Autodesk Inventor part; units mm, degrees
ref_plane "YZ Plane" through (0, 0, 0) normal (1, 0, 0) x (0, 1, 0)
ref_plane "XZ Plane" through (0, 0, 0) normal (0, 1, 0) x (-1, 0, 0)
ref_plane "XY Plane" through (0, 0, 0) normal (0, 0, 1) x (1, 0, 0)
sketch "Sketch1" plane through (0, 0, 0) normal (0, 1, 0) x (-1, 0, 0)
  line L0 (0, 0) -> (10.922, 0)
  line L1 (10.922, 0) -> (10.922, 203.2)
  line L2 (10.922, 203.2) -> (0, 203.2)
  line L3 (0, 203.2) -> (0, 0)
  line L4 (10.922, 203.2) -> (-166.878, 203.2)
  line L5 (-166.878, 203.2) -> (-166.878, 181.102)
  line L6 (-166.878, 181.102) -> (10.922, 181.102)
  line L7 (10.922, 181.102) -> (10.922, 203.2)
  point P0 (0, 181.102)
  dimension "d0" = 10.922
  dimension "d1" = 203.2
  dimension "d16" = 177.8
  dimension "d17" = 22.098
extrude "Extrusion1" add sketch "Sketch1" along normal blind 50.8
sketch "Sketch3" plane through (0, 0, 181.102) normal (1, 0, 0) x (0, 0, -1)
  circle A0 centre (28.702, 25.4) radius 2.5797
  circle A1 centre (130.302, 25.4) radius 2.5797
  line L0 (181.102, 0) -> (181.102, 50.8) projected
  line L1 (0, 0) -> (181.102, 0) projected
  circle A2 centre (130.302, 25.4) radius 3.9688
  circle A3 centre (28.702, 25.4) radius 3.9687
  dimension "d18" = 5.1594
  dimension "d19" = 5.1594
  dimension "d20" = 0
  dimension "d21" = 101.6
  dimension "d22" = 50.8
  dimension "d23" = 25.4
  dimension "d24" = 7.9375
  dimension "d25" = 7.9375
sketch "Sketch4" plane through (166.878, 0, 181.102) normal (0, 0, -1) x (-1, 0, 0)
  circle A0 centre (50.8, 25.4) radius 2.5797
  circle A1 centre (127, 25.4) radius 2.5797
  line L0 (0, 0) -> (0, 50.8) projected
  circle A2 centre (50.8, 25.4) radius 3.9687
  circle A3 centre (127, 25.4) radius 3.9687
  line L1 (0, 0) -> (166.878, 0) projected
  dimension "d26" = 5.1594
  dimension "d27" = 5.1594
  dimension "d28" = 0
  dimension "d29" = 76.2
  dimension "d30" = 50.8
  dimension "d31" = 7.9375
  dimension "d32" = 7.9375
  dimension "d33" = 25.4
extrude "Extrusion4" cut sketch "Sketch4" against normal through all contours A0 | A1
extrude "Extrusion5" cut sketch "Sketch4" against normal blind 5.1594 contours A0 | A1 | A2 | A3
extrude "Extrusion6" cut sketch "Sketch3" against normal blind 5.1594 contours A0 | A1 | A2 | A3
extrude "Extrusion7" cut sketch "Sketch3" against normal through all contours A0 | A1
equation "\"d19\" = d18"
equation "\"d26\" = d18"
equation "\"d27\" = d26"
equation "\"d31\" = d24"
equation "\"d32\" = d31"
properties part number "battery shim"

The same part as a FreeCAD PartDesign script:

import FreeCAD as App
import Part
import Sketcher

V = App.Vector
Q = App.Units.Quantity


def add_polygon(sketch, points):
    """Adds a closed chain of lines whose ends are joined by coincident constraints."""
    first, n = sketch.GeometryCount, len(points)
    for a, b in zip(points, points[1:] + points[:1]):
        sketch.addGeometry(Part.LineSegment(App.Vector(*a, 0), App.Vector(*b, 0)), False)
    for i in range(n):
        sketch.addConstraint(Sketcher.Constraint("Coincident", first + i, 2, first + (i + 1) % n, 1))

doc = App.newDocument("Part")
params = doc.addObject("Spreadsheet::Sheet", "Params")
for row, (alias, value) in enumerate([
    ("sketch1_width", "7 in"),
    ("sketch1_height", "8 in"),
    ("sketch1_width2", "0.43 in"),
    ("sketch1_height2", "0.87 in"),
    ("pad1_length", "2 in"),
    ("sketch2_diameter", "0.203126 in"),
    ("sketch3_diameter", "0.3125 in"),
    ("pocket2_length", "0.203126 in"),
    ("sketch4_diameter", "0.3125 in"),
    ("pocket3_length", "0.203126 in"),
    ("sketch5_diameter", "0.203126 in"),
], start=1):
    params.set(f"A{row}", alias)
    params.set(f"B{row}", "=" + value)
    params.setAlias(f"B{row}", alias)

body = doc.addObject("PartDesign::Body", "Body")

sketch1 = body.newObject("Sketcher::SketchObject", "Sketch")
sketch1.AttachmentSupport = (doc.getObject("XZ_Plane"), [""])
sketch1.MapMode = "FlatFace"
add_polygon(sketch1, [(0, 181), (0, 0), (-11, 0), (-11, 203), (167, 203), (167, 181)])
sketch1.addConstraint(Sketcher.Constraint("Vertical", 0))
sketch1.addConstraint(Sketcher.Constraint("Horizontal", 1))
sketch1.addConstraint(Sketcher.Constraint("Vertical", 2))
sketch1.addConstraint(Sketcher.Constraint("Horizontal", 3))
sketch1.addConstraint(Sketcher.Constraint("Vertical", 4))
sketch1.addConstraint(Sketcher.Constraint("Horizontal", 5))
sketch1.addConstraint(Sketcher.Constraint("Coincident", 0, 2, -1, 1))
sketch1.addConstraint(Sketcher.Constraint("DistanceX", 3, 1, 3, 2, Q("7 in")))
sketch1.addConstraint(Sketcher.Constraint("DistanceY", 2, 1, 2, 2, Q("8 in")))
sketch1.addConstraint(Sketcher.Constraint("DistanceX", 1, 2, 1, 1, Q("0.43 in")))
sketch1.addConstraint(Sketcher.Constraint("DistanceY", 4, 2, 4, 1, Q("0.87 in")))
sketch1.setExpression("Constraints[13]", "Params.sketch1_width")
sketch1.setExpression("Constraints[14]", "Params.sketch1_height")
sketch1.setExpression("Constraints[15]", "Params.sketch1_width2")
sketch1.setExpression("Constraints[16]", "Params.sketch1_height2")
pad1 = body.newObject("PartDesign::Pad", "Pad")
pad1.Profile = sketch1
pad1.setExpression("Length", "Params.pad1_length")
pad1.Reversed = True

sketch2 = body.newObject("Sketcher::SketchObject", "Sketch001")
sketch2.AttachmentSupport = (doc.getObject("XY_Plane"), [""])
sketch2.MapMode = "FlatFace"
sketch2.AttachmentOffset = App.Placement(V(0, 0, 7.13 * 25.4), App.Rotation())
sketch2.addGeometry(Part.Circle(V(116.1, 25.4, 0), V(0, 0, 1), 2.6), False)
sketch2.addGeometry(Part.Circle(V(39.9, 25.4, 0), V(0, 0, 1), 2.6), False)
sketch2.addConstraint(Sketcher.Constraint("Equal", 0, 1))
sketch2.addConstraint(Sketcher.Constraint("Horizontal", 0, 3, 1, 3))
sketch2.addConstraint(Sketcher.Constraint("Diameter", 0, Q("0.203126 in")))
sketch2.addConstraint(Sketcher.Constraint("DistanceY", -1, 1, 0, 3, Q("1 in")))
sketch2.addConstraint(Sketcher.Constraint("DistanceX", 1, 3, 0, 3, Q("3 in")))
sketch2.addConstraint(Sketcher.Constraint("DistanceX", -1, 1, 0, 3, Q("4.57 in")))
sketch2.setExpression("Constraints[2]", "Params.sketch2_diameter")
pocket1 = body.newObject("PartDesign::Pocket", "Pocket")
pocket1.Profile = sketch2
pocket1.Type = "ThroughAll"
pocket1.Reversed = True

sketch3 = body.newObject("Sketcher::SketchObject", "Sketch002")
sketch3.AttachmentSupport = (doc.getObject("XY_Plane"), [""])
sketch3.MapMode = "FlatFace"
sketch3.AttachmentOffset = App.Placement(V(0, 0, 7.13 * 25.4), App.Rotation())
sketch3.addGeometry(Part.Circle(V(116.1, 25.4, 0), V(0, 0, 1), 4), False)
sketch3.addGeometry(Part.Circle(V(39.9, 25.4, 0), V(0, 0, 1), 4), False)
sketch3.addConstraint(Sketcher.Constraint("Equal", 0, 1))
sketch3.addConstraint(Sketcher.Constraint("Horizontal", 0, 3, 1, 3))
sketch3.addConstraint(Sketcher.Constraint("Diameter", 0, Q("0.3125 in")))
sketch3.addConstraint(Sketcher.Constraint("DistanceY", -1, 1, 0, 3, Q("1 in")))
sketch3.addConstraint(Sketcher.Constraint("DistanceX", 1, 3, 0, 3, Q("3 in")))
sketch3.addConstraint(Sketcher.Constraint("DistanceX", -1, 1, 0, 3, Q("4.57 in")))
sketch3.setExpression("Constraints[2]", "Params.sketch3_diameter")
pocket2 = body.newObject("PartDesign::Pocket", "Pocket001")
pocket2.Profile = sketch3
pocket2.setExpression("Length", "Params.pocket2_length")
pocket2.Reversed = True

sketch4 = body.newObject("Sketcher::SketchObject", "Sketch003")
sketch4.AttachmentSupport = (doc.getObject("YZ_Plane"), [""])
sketch4.MapMode = "FlatFace"
sketch4.addGeometry(Part.Circle(V(25.4, 152.4, 0), V(0, 0, 1), 4), False)
sketch4.addGeometry(Part.Circle(V(25.4, 50.8, 0), V(0, 0, 1), 4), False)
sketch4.addConstraint(Sketcher.Constraint("Equal", 0, 1))
sketch4.addConstraint(Sketcher.Constraint("Vertical", 0, 3, 1, 3))
sketch4.addConstraint(Sketcher.Constraint("Diameter", 0, Q("0.3125 in")))
sketch4.addConstraint(Sketcher.Constraint("DistanceX", -1, 1, 0, 3, Q("1 in")))
sketch4.addConstraint(Sketcher.Constraint("DistanceY", -1, 1, 1, 3, Q("2 in")))
sketch4.addConstraint(Sketcher.Constraint("DistanceY", 1, 3, 0, 3, Q("4 in")))
sketch4.setExpression("Constraints[2]", "Params.sketch4_diameter")
pocket3 = body.newObject("PartDesign::Pocket", "Pocket002")
pocket3.Profile = sketch4
pocket3.setExpression("Length", "Params.pocket3_length")

sketch5 = body.newObject("Sketcher::SketchObject", "Sketch004")
sketch5.AttachmentSupport = (doc.getObject("YZ_Plane"), [""])
sketch5.MapMode = "FlatFace"
sketch5.addGeometry(Part.Circle(V(25.4, 152.4, 0), V(0, 0, 1), 2.6), False)
sketch5.addGeometry(Part.Circle(V(25.4, 50.8, 0), V(0, 0, 1), 2.6), False)
sketch5.addConstraint(Sketcher.Constraint("Equal", 0, 1))
sketch5.addConstraint(Sketcher.Constraint("Vertical", 0, 3, 1, 3))
sketch5.addConstraint(Sketcher.Constraint("Diameter", 0, Q("0.203126 in")))
sketch5.addConstraint(Sketcher.Constraint("DistanceX", -1, 1, 0, 3, Q("1 in")))
sketch5.addConstraint(Sketcher.Constraint("DistanceY", -1, 1, 1, 3, Q("2 in")))
sketch5.addConstraint(Sketcher.Constraint("DistanceY", 1, 3, 0, 3, Q("4 in")))
sketch5.setExpression("Constraints[2]", "Params.sketch5_diameter")
pocket4 = body.newObject("PartDesign::Pocket", "Pocket003")
pocket4.Profile = sketch5
pocket4.Type = "ThroughAll"

doc.recompute()
